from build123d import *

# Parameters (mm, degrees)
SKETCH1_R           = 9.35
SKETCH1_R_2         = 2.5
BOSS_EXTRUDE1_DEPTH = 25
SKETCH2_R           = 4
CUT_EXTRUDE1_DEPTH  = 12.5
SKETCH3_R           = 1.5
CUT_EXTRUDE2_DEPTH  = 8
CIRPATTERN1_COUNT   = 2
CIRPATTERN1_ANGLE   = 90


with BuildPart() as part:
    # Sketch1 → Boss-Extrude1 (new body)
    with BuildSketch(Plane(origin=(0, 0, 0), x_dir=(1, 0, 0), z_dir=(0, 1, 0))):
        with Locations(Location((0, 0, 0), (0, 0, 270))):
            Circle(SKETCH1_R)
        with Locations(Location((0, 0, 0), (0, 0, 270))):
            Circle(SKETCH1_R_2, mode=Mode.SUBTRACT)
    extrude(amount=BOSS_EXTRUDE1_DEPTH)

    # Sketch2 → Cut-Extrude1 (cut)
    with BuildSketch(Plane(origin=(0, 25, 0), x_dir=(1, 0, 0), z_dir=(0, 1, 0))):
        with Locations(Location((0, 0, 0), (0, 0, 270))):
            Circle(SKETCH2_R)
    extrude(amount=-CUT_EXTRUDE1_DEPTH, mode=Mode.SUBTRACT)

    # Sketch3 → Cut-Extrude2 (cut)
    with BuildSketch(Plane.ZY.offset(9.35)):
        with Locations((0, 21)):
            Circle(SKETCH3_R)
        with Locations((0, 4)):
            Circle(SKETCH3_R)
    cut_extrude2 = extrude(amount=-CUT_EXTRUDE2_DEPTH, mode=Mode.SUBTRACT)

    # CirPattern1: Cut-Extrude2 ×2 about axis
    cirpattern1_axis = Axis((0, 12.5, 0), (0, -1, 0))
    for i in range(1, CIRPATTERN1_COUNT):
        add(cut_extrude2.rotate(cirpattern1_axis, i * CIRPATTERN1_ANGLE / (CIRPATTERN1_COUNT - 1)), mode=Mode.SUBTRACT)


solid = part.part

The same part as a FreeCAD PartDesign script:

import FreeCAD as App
import Part
import Sketcher
Q = App.Units.Quantity

doc = App.newDocument("Part")
body = doc.addObject("PartDesign::Body", "Body")

sketch1 = body.newObject("Sketcher::SketchObject", "Sketch")
sketch1.AttachmentSupport = (doc.getObject("XZ_Plane"), [""])
sketch1.MapMode = "FlatFace"
sketch1.addGeometry([
    Part.Circle(App.Vector(0, 0, 0), App.Vector(0, 0, 1), 9.3),
    Part.Circle(App.Vector(0, 0, 0), App.Vector(0, 0, 1), 2.5),
], False)
sketch1.addConstraint([
    Sketcher.Constraint("Coincident", 0, 3, -1, 1),
    Sketcher.Constraint("Coincident", 1, 3, -1, 1),
    Sketcher.Constraint("Diameter", 1, Q("5 mm")),
    Sketcher.Constraint("Diameter", 0, Q("18.7 mm")),
])
pad1 = body.newObject("PartDesign::Pad", "Pad")
pad1.Profile = sketch1
pad1.Length = 25
pad1.Reversed = True

sketch2 = body.newObject("Sketcher::SketchObject", "Sketch001")
sketch2.AttachmentSupport = (doc.getObject("XZ_Plane"), [""])
sketch2.MapMode = "FlatFace"
sketch2.AttachmentOffset = App.Placement(App.Vector(0, 0, -25), App.Rotation())
sketch2.addGeometry(Part.Circle(App.Vector(0, 0, 0), App.Vector(0, 0, 1), 4), False)
sketch2.addConstraint([
    Sketcher.Constraint("Coincident", 0, 3, -1, 1),
    Sketcher.Constraint("Diameter", 0, Q("8 mm")),
])
pocket1 = body.newObject("PartDesign::Pocket", "Pocket")
pocket1.Profile = sketch2
pocket1.Length = 12.5
pocket1.Reversed = True

sketch3 = body.newObject("Sketcher::SketchObject", "Sketch002")
sketch3.AttachmentSupport = (doc.getObject("YZ_Plane"), [""])
sketch3.MapMode = "FlatFace"
sketch3.AttachmentOffset = App.Placement(App.Vector(0, 0, -9.35), App.Rotation())
sketch3.addGeometry([
    Part.Circle(App.Vector(21, 0, 0), App.Vector(0, 0, 1), 1.5),
    Part.Circle(App.Vector(4, 0, 0), App.Vector(0, 0, 1), 1.5),
], False)
sketch3.addConstraint([
    Sketcher.Constraint("Equal", 0, 1),
    Sketcher.Constraint("PointOnObject", 0, 3, -1),
    Sketcher.Constraint("PointOnObject", 1, 3, -1),
    Sketcher.Constraint("Diameter", 0, Q("3 mm")),
    Sketcher.Constraint("DistanceX", -1, 1, 0, 3, Q("21 mm")),
    Sketcher.Constraint("DistanceX", -1, 1, 1, 3, Q("4 mm")),
])
pocket2 = body.newObject("PartDesign::Pocket", "Pocket001")
pocket2.Profile = sketch3
pocket2.Length = 8
pocket2.Reversed = True
doc.recompute()

polarpattern = body.newObject("PartDesign::PolarPattern", "PolarPattern")
polarpattern.Originals = [pocket2]
polarpattern.Axis = (doc.getObject("Y_Axis"), [""])
polarpattern.Angle = 90
polarpattern.Occurrences = 2
polarpattern.Reversed = True
body.Tip = polarpattern

doc.recompute()
